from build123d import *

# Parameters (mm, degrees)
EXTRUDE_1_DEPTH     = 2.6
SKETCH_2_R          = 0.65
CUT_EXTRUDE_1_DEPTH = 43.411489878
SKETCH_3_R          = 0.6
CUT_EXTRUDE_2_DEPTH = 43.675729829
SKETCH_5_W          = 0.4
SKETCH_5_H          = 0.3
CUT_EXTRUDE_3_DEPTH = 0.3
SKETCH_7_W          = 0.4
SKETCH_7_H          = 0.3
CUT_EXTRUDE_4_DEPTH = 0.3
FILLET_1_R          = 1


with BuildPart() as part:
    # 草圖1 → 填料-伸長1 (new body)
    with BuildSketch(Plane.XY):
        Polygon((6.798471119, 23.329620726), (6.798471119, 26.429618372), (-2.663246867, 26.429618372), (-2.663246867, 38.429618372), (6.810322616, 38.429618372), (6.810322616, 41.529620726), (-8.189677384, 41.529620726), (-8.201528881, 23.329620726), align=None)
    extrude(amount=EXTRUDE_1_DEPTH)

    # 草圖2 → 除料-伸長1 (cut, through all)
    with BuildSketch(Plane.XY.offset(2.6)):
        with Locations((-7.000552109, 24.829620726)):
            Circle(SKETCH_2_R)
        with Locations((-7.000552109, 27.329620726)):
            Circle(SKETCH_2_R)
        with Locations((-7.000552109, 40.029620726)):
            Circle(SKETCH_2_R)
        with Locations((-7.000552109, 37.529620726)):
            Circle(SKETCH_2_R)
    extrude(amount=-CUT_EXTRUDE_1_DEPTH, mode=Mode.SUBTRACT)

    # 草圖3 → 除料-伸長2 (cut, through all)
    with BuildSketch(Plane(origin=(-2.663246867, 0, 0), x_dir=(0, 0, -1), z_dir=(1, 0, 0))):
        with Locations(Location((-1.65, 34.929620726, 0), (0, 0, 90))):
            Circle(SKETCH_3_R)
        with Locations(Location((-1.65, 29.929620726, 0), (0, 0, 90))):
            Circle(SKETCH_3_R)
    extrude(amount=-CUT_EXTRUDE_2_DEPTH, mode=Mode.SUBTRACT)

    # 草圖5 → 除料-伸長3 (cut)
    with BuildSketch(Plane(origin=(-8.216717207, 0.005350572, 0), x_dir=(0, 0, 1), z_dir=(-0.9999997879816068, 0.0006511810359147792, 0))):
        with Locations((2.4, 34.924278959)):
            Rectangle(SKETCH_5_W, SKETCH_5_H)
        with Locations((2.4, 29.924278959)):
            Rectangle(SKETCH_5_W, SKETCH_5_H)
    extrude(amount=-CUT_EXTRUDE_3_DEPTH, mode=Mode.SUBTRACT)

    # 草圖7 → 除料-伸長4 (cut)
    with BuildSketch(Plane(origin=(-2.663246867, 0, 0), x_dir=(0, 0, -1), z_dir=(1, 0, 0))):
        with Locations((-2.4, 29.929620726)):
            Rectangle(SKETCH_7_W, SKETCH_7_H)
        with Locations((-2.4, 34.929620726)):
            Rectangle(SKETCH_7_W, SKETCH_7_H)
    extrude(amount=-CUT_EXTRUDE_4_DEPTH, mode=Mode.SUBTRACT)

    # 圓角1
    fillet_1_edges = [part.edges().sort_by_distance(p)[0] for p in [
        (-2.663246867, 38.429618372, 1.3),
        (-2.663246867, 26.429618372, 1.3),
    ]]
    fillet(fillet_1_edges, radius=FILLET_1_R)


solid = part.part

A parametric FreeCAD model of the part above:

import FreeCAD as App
import Part
import Sketcher
Q = App.Units.Quantity


def edges_at(feature, points):
    """Names of the edges that pass closest to the given points."""
    edges = feature.Shape.Edges
    near = lambda p: min(range(len(edges)), key=lambda i: edges[i].distToShape(Part.Vertex(*p))[0])
    return sorted({f"Edge{near(p) + 1}" for p in points})

doc = App.newDocument("Part")
body = doc.addObject("PartDesign::Body", "Body")

# Sketch on XY plane
sketch1 = body.newObject("Sketcher::SketchObject", "Sketch")
sketch1.AttachmentSupport = (doc.getObject("XY_Plane"), [""])
sketch1.MapMode = "FlatFace"
sketch1.addGeometry(Part.LineSegment(App.Vector(6.8, 23.3, 0), App.Vector(6.8, 26.4, 0)), False)
sketch1.addGeometry(Part.LineSegment(App.Vector(6.8, 26.4, 0), App.Vector(-2.7, 26.4, 0)), False)
sketch1.addGeometry(Part.LineSegment(App.Vector(-2.7, 26.4, 0), App.Vector(-2.7, 38.4, 0)), False)
sketch1.addGeometry(Part.LineSegment(App.Vector(-2.7, 38.4, 0), App.Vector(6.8, 38.4, 0)), False)
sketch1.addGeometry(Part.LineSegment(App.Vector(6.8, 38.4, 0), App.Vector(6.8, 41.5, 0)), False)
sketch1.addGeometry(Part.LineSegment(App.Vector(6.8, 41.5, 0), App.Vector(-8.2, 41.5, 0)), False)
sketch1.addGeometry(Part.LineSegment(App.Vector(-8.2, 41.5, 0), App.Vector(-8.2, 23.3, 0)), False)
sketch1.addGeometry(Part.LineSegment(App.Vector(-8.2, 23.3, 0), App.Vector(6.8, 23.3, 0)), False)
sketch1.addConstraint(Sketcher.Constraint("Coincident", 0, 2, 1, 1))
sketch1.addConstraint(Sketcher.Constraint("Coincident", 1, 2, 2, 1))
sketch1.addConstraint(Sketcher.Constraint("Coincident", 2, 2, 3, 1))
sketch1.addConstraint(Sketcher.Constraint("Coincident", 3, 2, 4, 1))
sketch1.addConstraint(Sketcher.Constraint("Coincident", 4, 2, 5, 1))
sketch1.addConstraint(Sketcher.Constraint("Coincident", 5, 2, 6, 1))
sketch1.addConstraint(Sketcher.Constraint("Coincident", 6, 2, 7, 1))
sketch1.addConstraint(Sketcher.Constraint("Coincident", 7, 2, 0, 1))
sketch1.addConstraint(Sketcher.Constraint("Vertical", 0))
sketch1.addConstraint(Sketcher.Constraint("Horizontal", 1))
sketch1.addConstraint(Sketcher.Constraint("Vertical", 2))
sketch1.addConstraint(Sketcher.Constraint("Horizontal", 3))
sketch1.addConstraint(Sketcher.Constraint("Vertical", 4))
sketch1.addConstraint(Sketcher.Constraint("Horizontal", 5))
sketch1.addConstraint(Sketcher.Constraint("Horizontal", 7))
sketch1.addConstraint(Sketcher.Constraint("Equal", 5, 7))
sketch1.addConstraint(Sketcher.Constraint("DistanceX", 5, 2, 5, 1, Q("15 mm")))
sketch1.addConstraint(Sketcher.Constraint("DistanceY", 2, 1, 2, 2, Q("12 mm")))
sketch1.addConstraint(Sketcher.Constraint("DistanceY", 6, 2, 5, 2, Q("18.2 mm")))
sketch1.addConstraint(Sketcher.Constraint("DistanceX", 3, 1, 3, 2, Q("9.473569 mm")))
sketch1.addConstraint(Sketcher.Constraint("DistanceX", 1, 2, 1, 1, Q("9.461718 mm")))
sketch1.addConstraint(Sketcher.Constraint("DistanceY", 0, 1, 0, 2, Q("3.099998 mm")))
sketch1.addConstraint(Sketcher.Constraint("DistanceX", -1, 1, 0, 2, Q("6.798471 mm")))
sketch1.addConstraint(Sketcher.Constraint("DistanceY", -1, 1, 0, 2, Q("26.429618 mm")))
pad1 = body.newObject("PartDesign::Pad", "Pad")
pad1.Profile = sketch1
pad1.Length = 2.6

# Sketch on XY plane
sketch2 = body.newObject("Sketcher::SketchObject", "Sketch001")
sketch2.AttachmentSupport = (doc.getObject("XY_Plane"), [""])
sketch2.MapMode = "FlatFace"
sketch2.AttachmentOffset = App.Placement(App.Vector(0, 0, 2.6), App.Rotation())
sketch2.addGeometry(Part.Circle(App.Vector(-7, 24.8, 0), App.Vector(0, 0, 1), 0.7), False)
sketch2.addGeometry(Part.Circle(App.Vector(-7, 27.3, 0), App.Vector(0, 0, 1), 0.7), False)
sketch2.addGeometry(Part.Circle(App.Vector(-7, 40, 0), App.Vector(0, 0, 1), 0.7), False)
sketch2.addGeometry(Part.Circle(App.Vector(-7, 37.5, 0), App.Vector(0, 0, 1), 0.7), False)
sketch2.addConstraint(Sketcher.Constraint("Equal", 0, 1))
sketch2.addConstraint(Sketcher.Constraint("Equal", 1, 2))
sketch2.addConstraint(Sketcher.Constraint("Equal", 2, 3))
sketch2.addConstraint(Sketcher.Constraint("Vertical", 0, 3, 1, 3))
sketch2.addConstraint(Sketcher.Constraint("Vertical", 1, 3, 2, 3))
sketch2.addConstraint(Sketcher.Constraint("Vertical", 2, 3, 3, 3))
sketch2.addConstraint(Sketcher.Constraint("Diameter", 0, Q("1.3 mm")))
sketch2.addConstraint(Sketcher.Constraint("DistanceY", 0, 3, 1, 3, Q("2.5 mm")))
sketch2.addConstraint(Sketcher.Constraint("DistanceY", 1, 3, 2, 3, Q("12.7 mm")))
sketch2.addConstraint(Sketcher.Constraint("DistanceY", 3, 3, 2, 3, Q("2.5 mm")))
sketch2.addConstraint(Sketcher.Constraint("DistanceY", -1, 1, 0, 3, Q("24.829621 mm")))
sketch2.addConstraint(Sketcher.Constraint("DistanceX", 0, 3, -1, 1, Q("7.000552 mm")))
pocket1 = body.newObject("PartDesign::Pocket", "Pocket")
pocket1.Profile = sketch2
pocket1.Type = "ThroughAll"

# Sketch on YZ plane
sketch3 = body.newObject("Sketcher::SketchObject", "Sketch002")
sketch3.AttachmentSupport = (doc.getObject("YZ_Plane"), [""])
sketch3.MapMode = "FlatFace"
sketch3.AttachmentOffset = App.Placement(App.Vector(0, 0, -2.663247), App.Rotation())
sketch3.addGeometry(Part.Circle(App.Vector(34.9, 1.6, 0), App.Vector(0, 0, 1), 0.6), False)
sketch3.addGeometry(Part.Circle(App.Vector(29.9, 1.6, 0), App.Vector(0, 0, 1), 0.6), False)
sketch3.addConstraint(Sketcher.Constraint("Equal", 0, 1))
sketch3.addConstraint(Sketcher.Constraint("Horizontal", 0, 3, 1, 3))
sketch3.addConstraint(Sketcher.Constraint("Diameter", 0, Q("1.2 mm")))
sketch3.addConstraint(Sketcher.Constraint("DistanceX", 1, 3, 0, 3, Q("5 mm")))
sketch3.addConstraint(Sketcher.Constraint("DistanceY", -1, 1, 0, 3, Q("1.65 mm")))
sketch3.addConstraint(Sketcher.Constraint("DistanceX", -1, 1, 0, 3, Q("34.929621 mm")))
pocket2 = body.newObject("PartDesign::Pocket", "Pocket001")
pocket2.Profile = sketch3
pocket2.Type = "ThroughAll"

# Sketch on an angled plane
sketch4 = body.newObject("Sketcher::SketchObject", "Sketch003")
sketch4.Placement = App.Placement(App.Vector(-8.216717, 0.005351, 0), App.Rotation(App.Vector(0, 0, 1), App.Vector(0.000651181, 0.999999788, 0), App.Vector(-0.999999788, 0.000651181, 0), "ZXY"))
sketch4.addGeometry(Part.LineSegment(App.Vector(2.2, 35.07, 0), App.Vector(2.2, 34.77, 0)), False)
sketch4.addGeometry(Part.LineSegment(App.Vector(2.2, 34.77, 0), App.Vector(2.6, 34.77, 0)), False)
sketch4.addGeometry(Part.LineSegment(App.Vector(2.6, 34.77, 0), App.Vector(2.6, 35.07, 0)), False)
sketch4.addGeometry(Part.LineSegment(App.Vector(2.6, 35.07, 0), App.Vector(2.2, 35.07, 0)), False)
sketch4.addGeometry(Part.LineSegment(App.Vector(2.2, 30.07, 0), App.Vector(2.2, 29.77, 0)), False)
sketch4.addGeometry(Part.LineSegment(App.Vector(2.2, 29.77, 0), App.Vector(2.6, 29.77, 0)), False)
sketch4.addGeometry(Part.LineSegment(App.Vector(2.6, 29.77, 0), App.Vector(2.6, 30.07, 0)), False)
sketch4.addGeometry(Part.LineSegment(App.Vector(2.6, 30.07, 0), App.Vector(2.2, 30.07, 0)), False)
sketch4.addConstraint(Sketcher.Constraint("Coincident", 0, 2, 1, 1))
sketch4.addConstraint(Sketcher.Constraint("Coincident", 1, 2, 2, 1))
sketch4.addConstraint(Sketcher.Constraint("Coincident", 2, 2, 3, 1))
sketch4.addConstraint(Sketcher.Constraint("Coincident", 3, 2, 0, 1))
sketch4.addConstraint(Sketcher.Constraint("Coincident", 4, 2, 5, 1))
sketch4.addConstraint(Sketcher.Constraint("Coincident", 5, 2, 6, 1))
sketch4.addConstraint(Sketcher.Constraint("Coincident", 6, 2, 7, 1))
sketch4.addConstraint(Sketcher.Constraint("Coincident", 7, 2, 4, 1))
sketch4.addConstraint(Sketcher.Constraint("Vertical", 0))
sketch4.addConstraint(Sketcher.Constraint("Horizontal", 1))
sketch4.addConstraint(Sketcher.Constraint("Vertical", 2))
sketch4.addConstraint(Sketcher.Constraint("Horizontal", 3))
sketch4.addConstraint(Sketcher.Constraint("Vertical", 4))
sketch4.addConstraint(Sketcher.Constraint("Horizontal", 5))
sketch4.addConstraint(Sketcher.Constraint("Vertical", 6))
sketch4.addConstraint(Sketcher.Constraint("Horizontal", 7))
sketch4.addConstraint(Sketcher.Constraint("Vertical", 3, 2, 4, 2))
sketch4.addConstraint(Sketcher.Constraint("Vertical", 2, 2, 5, 2))
sketch4.addConstraint(Sketcher.Constraint("Equal", 2, 4))
sketch4.addConstraint(Sketcher.Constraint("DistanceX", 1, 1, 1, 2, Q("0.4 mm")))
sketch4.addConstraint(Sketcher.Constraint("DistanceY", 0, 2, 0, 1, Q("0.3 mm")))
sketch4.addConstraint(Sketcher.Constraint("DistanceY", 4, 2, 0, 2, Q("5 mm")))
sketch4.addConstraint(Sketcher.Constraint("DistanceX", -1, 1, 0, 2, Q("2.2 mm")))
sketch4.addConstraint(Sketcher.Constraint("DistanceY", -1, 1, 0, 2, Q("34.774279 mm")))
pocket3 = body.newObject("PartDesign::Pocket", "Pocket002")
pocket3.Profile = sketch4
pocket3.Length = 0.3

# Sketch on YZ plane
sketch5 = body.newObject("Sketcher::SketchObject", "Sketch004")
sketch5.AttachmentSupport = (doc.getObject("YZ_Plane"), [""])
sketch5.MapMode = "FlatFace"
sketch5.AttachmentOffset = App.Placement(App.Vector(0, 0, -2.663247), App.Rotation())
sketch5.addGeometry(Part.LineSegment(App.Vector(30.08, 2.6, 0), App.Vector(29.78, 2.6, 0)), False)
sketch5.addGeometry(Part.LineSegment(App.Vector(29.78, 2.6, 0), App.Vector(29.78, 2.2, 0)), False)
sketch5.addGeometry(Part.LineSegment(App.Vector(29.78, 2.2, 0), App.Vector(30.08, 2.2, 0)), False)
sketch5.addGeometry(Part.LineSegment(App.Vector(30.08, 2.2, 0), App.Vector(30.08, 2.6, 0)), False)
sketch5.addGeometry(Part.LineSegment(App.Vector(35.08, 2.6, 0), App.Vector(34.78, 2.6, 0)), False)
sketch5.addGeometry(Part.LineSegment(App.Vector(34.78, 2.6, 0), App.Vector(34.78, 2.2, 0)), False)
sketch5.addGeometry(Part.LineSegment(App.Vector(34.78, 2.2, 0), App.Vector(35.08, 2.2, 0)), False)
sketch5.addGeometry(Part.LineSegment(App.Vector(35.08, 2.2, 0), App.Vector(35.08, 2.6, 0)), False)
sketch5.addConstraint(Sketcher.Constraint("Coincident", 0, 2, 1, 1))
sketch5.addConstraint(Sketcher.Constraint("Coincident", 1, 2, 2, 1))
sketch5.addConstraint(Sketcher.Constraint("Coincident", 2, 2, 3, 1))
sketch5.addConstraint(Sketcher.Constraint("Coincident", 3, 2, 0, 1))
sketch5.addConstraint(Sketcher.Constraint("Coincident", 4, 2, 5, 1))
sketch5.addConstraint(Sketcher.Constraint("Coincident", 5, 2, 6, 1))
sketch5.addConstraint(Sketcher.Constraint("Coincident", 6, 2, 7, 1))
sketch5.addConstraint(Sketcher.Constraint("Coincident", 7, 2, 4, 1))
sketch5.addConstraint(Sketcher.Constraint("Horizontal", 0))
sketch5.addConstraint(Sketcher.Constraint("Vertical", 1))
sketch5.addConstraint(Sketcher.Constraint("Horizontal", 2))
sketch5.addConstraint(Sketcher.Constraint("Vertical", 3))
sketch5.addConstraint(Sketcher.Constraint("Horizontal", 4))
sketch5.addConstraint(Sketcher.Constraint("Vertical", 5))
sketch5.addConstraint(Sketcher.Constraint("Horizontal", 6))
sketch5.addConstraint(Sketcher.Constraint("Vertical", 7))
sketch5.addConstraint(Sketcher.Constraint("Horizontal", 3, 2, 4, 2))
sketch5.addConstraint(Sketcher.Constraint("Horizontal", 2, 2, 5, 2))
sketch5.addConstraint(Sketcher.Constraint("Equal", 2, 4))
sketch5.addConstraint(Sketcher.Constraint("DistanceX", 0, 2, 0, 1, Q("0.3 mm")))
sketch5.addConstraint(Sketcher.Constraint("DistanceY", 1, 2, 1, 1, Q("0.4 mm")))
sketch5.addConstraint(Sketcher.Constraint("DistanceX", 0, 2, 4, 2, Q("5 mm")))
sketch5.addConstraint(Sketcher.Constraint("DistanceY", -1, 1, 0, 2, Q("2.6 mm")))
sketch5.addConstraint(Sketcher.Constraint("DistanceX", -1, 1, 0, 2, Q("29.779621 mm")))
pocket4 = body.newObject("PartDesign::Pocket", "Pocket003")
pocket4.Profile = sketch5
pocket4.Length = 0.3
doc.recompute()

fillet = body.newObject("PartDesign::Fillet", "Fillet")
fillet.Base = (pocket4, edges_at(pocket4, [(-2.663, 38.43, 1.3), (-2.663, 26.43, 1.3)]))
fillet.Radius = 1

doc.recompute()
